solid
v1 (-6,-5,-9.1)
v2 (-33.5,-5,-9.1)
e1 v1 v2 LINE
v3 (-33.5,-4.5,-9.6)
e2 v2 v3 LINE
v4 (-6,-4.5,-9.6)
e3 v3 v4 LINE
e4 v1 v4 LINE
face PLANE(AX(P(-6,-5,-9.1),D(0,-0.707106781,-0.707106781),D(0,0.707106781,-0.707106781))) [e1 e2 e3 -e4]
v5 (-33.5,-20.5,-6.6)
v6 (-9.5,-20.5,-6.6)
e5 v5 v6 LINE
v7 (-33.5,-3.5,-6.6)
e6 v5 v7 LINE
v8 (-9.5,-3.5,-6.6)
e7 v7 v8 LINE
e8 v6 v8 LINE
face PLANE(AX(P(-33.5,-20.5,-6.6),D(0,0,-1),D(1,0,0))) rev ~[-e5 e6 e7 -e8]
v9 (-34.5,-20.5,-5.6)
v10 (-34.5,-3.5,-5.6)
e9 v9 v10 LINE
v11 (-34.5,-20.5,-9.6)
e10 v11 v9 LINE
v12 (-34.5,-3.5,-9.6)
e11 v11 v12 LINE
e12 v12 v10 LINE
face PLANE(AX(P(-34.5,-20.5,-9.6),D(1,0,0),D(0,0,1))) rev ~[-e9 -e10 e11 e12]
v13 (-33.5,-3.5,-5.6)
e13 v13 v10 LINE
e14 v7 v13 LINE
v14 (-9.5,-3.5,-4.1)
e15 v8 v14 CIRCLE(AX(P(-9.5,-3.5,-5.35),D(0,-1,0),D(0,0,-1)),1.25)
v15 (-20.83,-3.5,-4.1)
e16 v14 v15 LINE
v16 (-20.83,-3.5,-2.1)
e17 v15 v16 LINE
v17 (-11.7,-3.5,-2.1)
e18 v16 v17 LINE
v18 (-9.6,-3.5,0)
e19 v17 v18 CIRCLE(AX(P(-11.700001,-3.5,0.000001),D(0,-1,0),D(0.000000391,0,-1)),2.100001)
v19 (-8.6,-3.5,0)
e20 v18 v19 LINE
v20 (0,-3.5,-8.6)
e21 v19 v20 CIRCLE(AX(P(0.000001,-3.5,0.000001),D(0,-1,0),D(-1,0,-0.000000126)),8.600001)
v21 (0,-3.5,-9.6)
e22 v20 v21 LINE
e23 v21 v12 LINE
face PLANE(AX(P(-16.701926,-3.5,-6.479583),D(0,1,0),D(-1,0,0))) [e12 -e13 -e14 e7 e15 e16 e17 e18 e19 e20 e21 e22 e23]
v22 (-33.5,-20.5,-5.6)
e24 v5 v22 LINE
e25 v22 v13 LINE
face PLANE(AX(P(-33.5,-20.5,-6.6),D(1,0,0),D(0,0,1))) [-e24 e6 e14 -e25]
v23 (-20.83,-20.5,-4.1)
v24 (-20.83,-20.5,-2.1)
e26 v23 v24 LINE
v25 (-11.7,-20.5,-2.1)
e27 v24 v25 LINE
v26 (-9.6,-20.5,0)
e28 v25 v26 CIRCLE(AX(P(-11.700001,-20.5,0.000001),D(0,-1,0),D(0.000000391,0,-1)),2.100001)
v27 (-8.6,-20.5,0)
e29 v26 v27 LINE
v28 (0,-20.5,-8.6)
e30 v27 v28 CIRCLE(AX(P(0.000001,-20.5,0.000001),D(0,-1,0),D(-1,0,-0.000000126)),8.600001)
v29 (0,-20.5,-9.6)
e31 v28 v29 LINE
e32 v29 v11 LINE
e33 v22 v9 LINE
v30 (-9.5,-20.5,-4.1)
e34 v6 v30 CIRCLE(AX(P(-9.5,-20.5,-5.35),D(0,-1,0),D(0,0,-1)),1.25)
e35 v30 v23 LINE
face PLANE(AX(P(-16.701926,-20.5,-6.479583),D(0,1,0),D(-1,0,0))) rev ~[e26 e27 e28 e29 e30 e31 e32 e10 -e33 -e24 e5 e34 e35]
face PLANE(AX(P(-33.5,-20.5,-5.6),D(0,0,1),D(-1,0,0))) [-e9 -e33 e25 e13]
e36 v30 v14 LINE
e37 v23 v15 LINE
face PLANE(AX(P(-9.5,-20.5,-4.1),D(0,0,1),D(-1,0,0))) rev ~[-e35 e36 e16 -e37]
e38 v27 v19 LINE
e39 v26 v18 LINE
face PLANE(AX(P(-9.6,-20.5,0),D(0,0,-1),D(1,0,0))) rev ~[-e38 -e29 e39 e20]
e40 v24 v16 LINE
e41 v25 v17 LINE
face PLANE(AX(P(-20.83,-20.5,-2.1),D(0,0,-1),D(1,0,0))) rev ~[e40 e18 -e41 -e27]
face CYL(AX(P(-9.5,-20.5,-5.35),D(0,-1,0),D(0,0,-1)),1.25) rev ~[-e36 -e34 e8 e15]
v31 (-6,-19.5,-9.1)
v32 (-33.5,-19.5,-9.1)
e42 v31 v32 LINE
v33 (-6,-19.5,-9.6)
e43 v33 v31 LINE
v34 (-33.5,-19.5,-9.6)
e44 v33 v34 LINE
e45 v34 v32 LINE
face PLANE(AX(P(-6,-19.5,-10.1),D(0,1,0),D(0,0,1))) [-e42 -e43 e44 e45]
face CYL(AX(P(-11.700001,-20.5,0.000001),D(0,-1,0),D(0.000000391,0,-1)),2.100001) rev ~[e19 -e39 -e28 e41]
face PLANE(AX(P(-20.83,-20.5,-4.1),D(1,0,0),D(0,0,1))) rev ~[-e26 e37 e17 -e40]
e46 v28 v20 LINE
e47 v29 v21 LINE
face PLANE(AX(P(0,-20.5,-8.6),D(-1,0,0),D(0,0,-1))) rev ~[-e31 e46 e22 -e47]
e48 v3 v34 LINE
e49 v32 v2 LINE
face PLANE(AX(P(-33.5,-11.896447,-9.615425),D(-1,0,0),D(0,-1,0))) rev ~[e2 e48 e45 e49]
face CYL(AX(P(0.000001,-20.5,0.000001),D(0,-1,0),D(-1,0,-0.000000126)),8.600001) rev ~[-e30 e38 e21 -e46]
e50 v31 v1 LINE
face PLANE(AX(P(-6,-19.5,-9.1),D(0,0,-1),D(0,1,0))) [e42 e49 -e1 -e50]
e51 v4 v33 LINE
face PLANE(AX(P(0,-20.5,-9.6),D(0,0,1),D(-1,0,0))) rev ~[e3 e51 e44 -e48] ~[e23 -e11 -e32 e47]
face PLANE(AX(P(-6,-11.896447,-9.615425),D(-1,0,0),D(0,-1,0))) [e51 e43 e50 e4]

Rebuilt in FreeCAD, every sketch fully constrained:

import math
import FreeCAD as App
import Part
import Sketcher

V = App.Vector
Q = App.Units.Quantity

doc = App.newDocument("Part")
body = doc.addObject("PartDesign::Body", "Body")

# Sketch on YZ plane
sketch1 = doc.addObject("Sketcher::SketchObject", "Sketch")
body.addObject(sketch1)
sketch1.AttachmentSupport = (doc.YZ_Plane, [""])
sketch1.MapMode = "FlatFace"
sketch1.AttachmentOffset = App.Placement(V(0, 0, -6), App.Rotation())
sketch1.addGeometry(Part.LineSegment(V(-19.5, -10.1, 0), V(-19.5, -9.1, 0)), False)
sketch1.addGeometry(Part.LineSegment(V(-19.5, -9.1, 0), V(-5, -9.1, 0)), False)
sketch1.addGeometry(Part.LineSegment(V(-5, -9.1, 0), V(-4, -10.1, 0)), False)
sketch1.addGeometry(Part.LineSegment(V(-4, -10.1, 0), V(-19.5, -10.1, 0)), False)
sketch1.addConstraint(Sketcher.Constraint("Coincident", 0, 2, 1, 1))
sketch1.addConstraint(Sketcher.Constraint("Coincident", 1, 2, 2, 1))
sketch1.addConstraint(Sketcher.Constraint("Coincident", 2, 2, 3, 1))
sketch1.addConstraint(Sketcher.Constraint("Coincident", 3, 2, 0, 1))
sketch1.addConstraint(Sketcher.Constraint("Vertical", 0))
sketch1.addConstraint(Sketcher.Constraint("Horizontal", 1))
sketch1.addConstraint(Sketcher.Constraint("Horizontal", 3))
sketch1.addConstraint(Sketcher.Constraint("DistanceY", 0, 1, 0, 2, 1.0))
sketch1.addConstraint(Sketcher.Constraint("Angle", 2, Q("-45 deg")))
sketch1.addConstraint(Sketcher.Constraint("DistanceX", 1, 1, 1, 2, 14.5))
sketch1.addConstraint(Sketcher.Constraint("DistanceX", 1, 2, -1, 1, 5.0))
sketch1.addConstraint(Sketcher.Constraint("DistanceY", 0, 2, -1, 1, 9.1))
pad1 = doc.addObject("PartDesign::Pad", "Pad")
body.addObject(pad1)
pad1.Profile = sketch1
pad1.Length = 27.5
pad1.Reversed = True
body2 = doc.addObject("PartDesign::Body", "Body001")

# Sketch on XZ plane
sketch2 = doc.addObject("Sketcher::SketchObject", "Sketch001")
body2.addObject(sketch2)
sketch2.AttachmentSupport = (doc.getObject("XZ_Plane001"), [""])
sketch2.MapMode = "FlatFace"
sketch2.AttachmentOffset = App.Placement(V(0, 0, 25), App.Rotation())
sketch2.addGeometry(Part.ArcOfCircle(Part.Circle(V(0, 0, 0), V(0, 0, 1), 8.6), math.radians(-180), math.radians(-90)), False)
sketch2.addGeometry(Part.LineSegment(V(-8.6, 0, 0), V(-9.6, 0, 0)), False)
sketch2.addGeometry(Part.ArcOfCircle(Part.Circle(V(-11.7, 0, 0), V(0, 0, 1), 2.1), math.radians(-90), math.radians(0)), False)
sketch2.addGeometry(Part.LineSegment(V(-11.7, -2.1, 0), V(-20.8, -2.1, 0)), False)
sketch2.addGeometry(Part.LineSegment(V(-20.8, -2.1, 0), V(-20.8, -4.1, 0)), False)
sketch2.addGeometry(Part.LineSegment(V(-20.8, -4.1, 0), V(-9.5, -4.1, 0)), False)
sketch2.addGeometry(Part.ArcOfCircle(Part.Circle(V(-9.5, -5.3, 0), V(0, 0, 1), 1.2), math.radians(-90), math.radians(90)), False)
sketch2.addGeometry(Part.LineSegment(V(-9.5, -6.6, 0), V(-33.5, -6.6, 0)), False)
sketch2.addGeometry(Part.LineSegment(V(-33.5, -6.6, 0), V(-33.5, -5.6, 0)), False)
sketch2.addGeometry(Part.LineSegment(V(-33.5, -5.6, 0), V(-34.5, -5.6, 0)), False)
sketch2.addGeometry(Part.LineSegment(V(-34.5, -5.6, 0), V(-34.5, -9.6, 0)), False)
sketch2.addGeometry(Part.LineSegment(V(-34.5, -9.6, 0), V(0, -9.6, 0)), False)
sketch2.addGeometry(Part.LineSegment(V(0, -9.6, 0), V(0, -8.6, 0)), False)
sketch2.addConstraint(Sketcher.Constraint("Coincident", 0, 1, 1, 1))
sketch2.addConstraint(Sketcher.Constraint("Coincident", 1, 2, 2, 2))
sketch2.addConstraint(Sketcher.Constraint("Tangent", 2, 1, 3, 1))
sketch2.addConstraint(Sketcher.Constraint("Coincident", 3, 2, 4, 1))
sketch2.addConstraint(Sketcher.Constraint("Coincident", 4, 2, 5, 1))
sketch2.addConstraint(Sketcher.Constraint("Tangent", 5, 2, 6, 2))
sketch2.addConstraint(Sketcher.Constraint("Tangent", 6, 1, 7, 1))
sketch2.addConstraint(Sketcher.Constraint("Coincident", 7, 2, 8, 1))
sketch2.addConstraint(Sketcher.Constraint("Coincident", 8, 2, 9, 1))
sketch2.addConstraint(Sketcher.Constraint("Coincident", 9, 2, 10, 1))
sketch2.addConstraint(Sketcher.Constraint("Coincident", 10, 2, 11, 1))
sketch2.addConstraint(Sketcher.Constraint("Coincident", 11, 2, 12, 1))
sketch2.addConstraint(Sketcher.Constraint("Coincident", 12, 2, 0, 2))
sketch2.addConstraint(Sketcher.Constraint("Horizontal", 1))
sketch2.addConstraint(Sketcher.Constraint("Horizontal", 3))
sketch2.addConstraint(Sketcher.Constraint("Vertical", 4))
sketch2.addConstraint(Sketcher.Constraint("Horizontal", 5))
sketch2.addConstraint(Sketcher.Constraint("Horizontal", 7))
sketch2.addConstraint(Sketcher.Constraint("Vertical", 8))
sketch2.addConstraint(Sketcher.Constraint("Horizontal", 9))
sketch2.addConstraint(Sketcher.Constraint("Vertical", 10))
sketch2.addConstraint(Sketcher.Constraint("Horizontal", 11))
sketch2.addConstraint(Sketcher.Constraint("Vertical", 12))
sketch2.addConstraint(Sketcher.Constraint("Coincident", 0, 3, -1, 1))
sketch2.addConstraint(Sketcher.Constraint("PointOnObject", 2, 3, -1))
sketch2.addConstraint(Sketcher.Constraint("PointOnObject", 0, 1, -1))
sketch2.addConstraint(Sketcher.Constraint("PointOnObject", 11, 2, -2))
sketch2.addConstraint(Sketcher.Constraint("Equal", 1, 9))
sketch2.addConstraint(Sketcher.Constraint("Equal", 9, 8))
sketch2.addConstraint(Sketcher.Constraint("Equal", 8, 12))
sketch2.addConstraint(Sketcher.Constraint("Radius", 0, 8.600001))
sketch2.addConstraint(Sketcher.Constraint("Radius", 2, 2.100001))
sketch2.addConstraint(Sketcher.Constraint("DistanceX", 1, 2, 1, 1, 1.0))
sketch2.addConstraint(Sketcher.Constraint("DistanceX", 7, 2, 7, 1, 24.0))
sketch2.addConstraint(Sketcher.Constraint("DistanceY", 4, 2, 4, 1, 2.0))
sketch2.addConstraint(Sketcher.Constraint("DistanceY", 10, 2, 10, 1, 4.0))
sketch2.addConstraint(Sketcher.Constraint("DistanceX", 11, 1, 11, 2, 34.5))
sketch2.addConstraint(Sketcher.Constraint("DistanceX", 3, 2, 3, 1, 9.13))
pad2 = doc.addObject("PartDesign::Pad", "Pad001")
body2.addObject(pad2)
pad2.Profile = sketch2
pad2.Length = 17
pad2.Reversed = True
body3 = doc.addObject("PartDesign::Body", "Body002")
doc.recompute()

body2.Placement = App.Placement(V(0, 4.5, 0), App.Rotation(V(0, 0, 1), 0))
boolean = doc.addObject("PartDesign::Boolean", "Boolean")
body3.addObject(boolean)
boolean.Type = "Fuse"
boolean.addObjects([body2])
doc.recompute()

boolean2 = doc.addObject("PartDesign::Boolean", "Boolean001")
body3.addObject(boolean2)
boolean2.Type = "Cut"
boolean2.addObjects([body])

doc.recompute()
